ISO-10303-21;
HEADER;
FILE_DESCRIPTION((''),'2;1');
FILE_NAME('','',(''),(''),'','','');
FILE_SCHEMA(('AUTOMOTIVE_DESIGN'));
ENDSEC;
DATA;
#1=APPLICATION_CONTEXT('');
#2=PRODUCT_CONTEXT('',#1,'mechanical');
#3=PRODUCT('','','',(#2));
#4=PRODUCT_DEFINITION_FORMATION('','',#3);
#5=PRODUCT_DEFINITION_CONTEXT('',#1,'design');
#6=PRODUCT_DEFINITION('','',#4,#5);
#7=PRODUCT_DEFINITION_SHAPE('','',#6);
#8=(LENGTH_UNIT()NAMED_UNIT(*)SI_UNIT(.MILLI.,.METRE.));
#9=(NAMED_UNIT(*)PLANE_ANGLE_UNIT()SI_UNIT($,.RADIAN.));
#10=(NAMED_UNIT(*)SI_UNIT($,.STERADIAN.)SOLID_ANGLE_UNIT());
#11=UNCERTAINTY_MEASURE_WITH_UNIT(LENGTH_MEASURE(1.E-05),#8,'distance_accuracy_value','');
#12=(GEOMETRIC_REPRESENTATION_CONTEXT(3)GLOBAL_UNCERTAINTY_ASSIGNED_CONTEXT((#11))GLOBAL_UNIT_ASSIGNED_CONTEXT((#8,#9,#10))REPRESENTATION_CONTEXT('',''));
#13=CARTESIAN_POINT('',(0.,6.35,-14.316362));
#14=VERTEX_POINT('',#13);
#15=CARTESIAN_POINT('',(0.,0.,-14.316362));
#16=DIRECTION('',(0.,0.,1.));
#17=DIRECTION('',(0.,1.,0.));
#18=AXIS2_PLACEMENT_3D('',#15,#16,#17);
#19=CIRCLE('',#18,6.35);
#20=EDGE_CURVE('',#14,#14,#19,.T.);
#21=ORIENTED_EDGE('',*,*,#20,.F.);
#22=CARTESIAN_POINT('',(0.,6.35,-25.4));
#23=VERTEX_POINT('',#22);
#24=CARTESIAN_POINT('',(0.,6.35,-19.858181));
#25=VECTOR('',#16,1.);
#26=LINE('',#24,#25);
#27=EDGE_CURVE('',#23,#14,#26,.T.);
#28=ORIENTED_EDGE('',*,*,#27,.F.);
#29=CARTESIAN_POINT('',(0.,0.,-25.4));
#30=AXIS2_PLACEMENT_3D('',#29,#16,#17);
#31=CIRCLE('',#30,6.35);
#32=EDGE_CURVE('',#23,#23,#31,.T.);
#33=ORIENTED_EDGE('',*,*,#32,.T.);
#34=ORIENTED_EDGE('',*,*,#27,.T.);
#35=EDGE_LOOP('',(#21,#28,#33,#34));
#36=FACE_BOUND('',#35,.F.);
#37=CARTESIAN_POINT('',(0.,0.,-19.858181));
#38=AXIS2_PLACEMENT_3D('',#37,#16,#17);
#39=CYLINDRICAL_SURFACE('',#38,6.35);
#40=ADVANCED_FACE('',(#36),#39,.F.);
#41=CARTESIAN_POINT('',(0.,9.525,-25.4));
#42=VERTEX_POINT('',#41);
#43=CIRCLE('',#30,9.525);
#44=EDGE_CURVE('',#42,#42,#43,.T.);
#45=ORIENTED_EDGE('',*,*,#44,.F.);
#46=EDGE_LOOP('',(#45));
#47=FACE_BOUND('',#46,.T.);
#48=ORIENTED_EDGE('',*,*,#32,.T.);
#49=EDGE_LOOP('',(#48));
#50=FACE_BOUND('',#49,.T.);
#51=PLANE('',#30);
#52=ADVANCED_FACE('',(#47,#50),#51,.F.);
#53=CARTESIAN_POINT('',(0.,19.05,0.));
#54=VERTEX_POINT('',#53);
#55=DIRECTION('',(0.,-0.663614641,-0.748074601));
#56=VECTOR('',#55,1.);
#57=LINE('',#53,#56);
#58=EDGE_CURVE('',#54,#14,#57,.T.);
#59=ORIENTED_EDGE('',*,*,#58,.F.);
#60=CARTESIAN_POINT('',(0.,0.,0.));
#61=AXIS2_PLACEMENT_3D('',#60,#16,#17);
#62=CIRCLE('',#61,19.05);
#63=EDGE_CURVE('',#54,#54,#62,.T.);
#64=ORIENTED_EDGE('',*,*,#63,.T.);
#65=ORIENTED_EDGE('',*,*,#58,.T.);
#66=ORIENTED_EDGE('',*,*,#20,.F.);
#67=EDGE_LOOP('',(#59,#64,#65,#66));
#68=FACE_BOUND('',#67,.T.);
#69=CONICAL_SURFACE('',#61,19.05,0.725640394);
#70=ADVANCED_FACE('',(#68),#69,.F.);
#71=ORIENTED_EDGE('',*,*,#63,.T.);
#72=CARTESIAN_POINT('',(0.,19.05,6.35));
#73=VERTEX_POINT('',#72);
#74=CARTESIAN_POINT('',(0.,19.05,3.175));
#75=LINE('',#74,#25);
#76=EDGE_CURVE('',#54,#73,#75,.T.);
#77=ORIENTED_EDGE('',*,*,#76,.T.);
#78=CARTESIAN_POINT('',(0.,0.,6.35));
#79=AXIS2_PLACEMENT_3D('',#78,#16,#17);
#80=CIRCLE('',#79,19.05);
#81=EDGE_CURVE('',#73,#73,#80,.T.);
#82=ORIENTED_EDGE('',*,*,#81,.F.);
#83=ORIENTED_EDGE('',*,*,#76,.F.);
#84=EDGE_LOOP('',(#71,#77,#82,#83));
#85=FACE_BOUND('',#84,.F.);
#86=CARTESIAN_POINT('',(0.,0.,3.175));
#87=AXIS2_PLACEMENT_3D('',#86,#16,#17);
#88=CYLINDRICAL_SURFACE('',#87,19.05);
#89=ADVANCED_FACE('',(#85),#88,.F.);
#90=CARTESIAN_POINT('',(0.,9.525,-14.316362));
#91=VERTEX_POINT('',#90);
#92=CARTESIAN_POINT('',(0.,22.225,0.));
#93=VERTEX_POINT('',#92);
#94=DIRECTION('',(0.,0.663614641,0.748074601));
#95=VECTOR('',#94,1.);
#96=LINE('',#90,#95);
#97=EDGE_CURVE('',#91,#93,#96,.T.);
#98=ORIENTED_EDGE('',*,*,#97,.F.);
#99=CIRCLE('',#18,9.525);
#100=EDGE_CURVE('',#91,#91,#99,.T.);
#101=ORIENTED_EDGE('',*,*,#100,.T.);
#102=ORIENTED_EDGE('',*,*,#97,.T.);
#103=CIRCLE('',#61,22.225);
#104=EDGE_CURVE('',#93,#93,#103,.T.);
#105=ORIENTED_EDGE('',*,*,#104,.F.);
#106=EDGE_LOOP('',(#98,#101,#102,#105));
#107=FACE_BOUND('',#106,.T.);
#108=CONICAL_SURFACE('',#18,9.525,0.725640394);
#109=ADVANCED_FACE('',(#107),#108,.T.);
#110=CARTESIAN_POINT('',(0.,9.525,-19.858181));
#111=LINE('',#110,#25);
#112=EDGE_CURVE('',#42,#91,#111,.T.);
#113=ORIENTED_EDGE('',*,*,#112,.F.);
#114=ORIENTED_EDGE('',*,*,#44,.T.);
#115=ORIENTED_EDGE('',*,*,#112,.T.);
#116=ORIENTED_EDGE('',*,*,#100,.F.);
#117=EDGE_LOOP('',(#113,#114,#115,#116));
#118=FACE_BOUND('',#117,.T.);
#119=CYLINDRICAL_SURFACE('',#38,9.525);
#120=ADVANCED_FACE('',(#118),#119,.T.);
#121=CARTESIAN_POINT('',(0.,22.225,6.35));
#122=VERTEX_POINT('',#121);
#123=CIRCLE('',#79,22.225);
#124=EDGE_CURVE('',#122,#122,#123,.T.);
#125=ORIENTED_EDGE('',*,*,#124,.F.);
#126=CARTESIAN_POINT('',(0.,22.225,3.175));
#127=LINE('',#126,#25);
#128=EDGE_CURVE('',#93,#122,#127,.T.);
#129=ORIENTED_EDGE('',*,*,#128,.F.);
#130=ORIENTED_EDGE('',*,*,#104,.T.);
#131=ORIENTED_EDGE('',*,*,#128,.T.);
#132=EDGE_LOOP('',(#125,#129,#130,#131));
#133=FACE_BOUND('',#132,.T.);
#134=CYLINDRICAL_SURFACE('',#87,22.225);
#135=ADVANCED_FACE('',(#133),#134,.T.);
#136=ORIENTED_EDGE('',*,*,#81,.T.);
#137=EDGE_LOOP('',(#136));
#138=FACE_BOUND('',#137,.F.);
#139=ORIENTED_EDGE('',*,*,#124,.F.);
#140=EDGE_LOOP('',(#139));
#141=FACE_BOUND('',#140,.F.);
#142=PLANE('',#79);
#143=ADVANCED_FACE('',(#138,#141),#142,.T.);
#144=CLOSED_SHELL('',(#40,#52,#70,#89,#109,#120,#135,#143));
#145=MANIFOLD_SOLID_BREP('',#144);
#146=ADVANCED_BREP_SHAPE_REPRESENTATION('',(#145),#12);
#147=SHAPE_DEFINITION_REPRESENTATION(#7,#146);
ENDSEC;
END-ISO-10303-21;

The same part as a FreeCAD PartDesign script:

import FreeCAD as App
import Part
import Sketcher
from FreeCAD import Vector
Q = App.Units.Quantity


def add_polygon(sketch, points):
    """Adds a closed chain of lines whose ends are joined by coincident constraints."""
    first, n = sketch.GeometryCount, len(points)
    for a, b in zip(points, points[1:] + points[:1]):
        sketch.addGeometry(Part.LineSegment(App.Vector(*a, 0), App.Vector(*b, 0)), False)
    for i in range(n):
        sketch.addConstraint(Sketcher.Constraint("Coincident", first + i, 2, first + (i + 1) % n, 1))

doc = App.newDocument("Part")
body = doc.addObject("PartDesign::Body", "Body")

# Sketch on YZ plane
sketch1 = doc.addObject("Sketcher::SketchObject", "Sketch")
body.addObject(sketch1)
sketch1.AttachmentSupport = (doc.YZ_Plane, [""])
sketch1.MapMode = "FlatFace"
add_polygon(sketch1, [(19.1, 6.3), (19.1, 0), (6.3, -14.3), (6.3, -25.4), (9.5, -25.4), (9.5, -14.3), (22.2, 0), (22.2, 6.3)])  # lines 0-7
sketch1.addConstraint([
    Sketcher.Constraint("Vertical", 0),
    Sketcher.Constraint("Vertical", 2),
    Sketcher.Constraint("Horizontal", 3),
    Sketcher.Constraint("Vertical", 4),
    Sketcher.Constraint("Vertical", 6),
    Sketcher.Constraint("Horizontal", 7),
    Sketcher.Constraint("PointOnObject", 0, 2, -1),
    Sketcher.Constraint("PointOnObject", 5, 2, -1),
    Sketcher.Constraint("Parallel", 1, 5),
    Sketcher.Constraint("Horizontal", 1, 2, 4, 2),
    Sketcher.Constraint("DistanceY", 2, 2, -1, 1, Q("1 in")),
    Sketcher.Constraint("DistanceY", 0, 2, 0, 1, Q("0.25 in")),
    Sketcher.Constraint("DistanceX", 1, 2, 0, 2, Q("0.5 in")),
    Sketcher.Constraint("DistanceX", 3, 1, 3, 2, Q("0.125 in")),
    Sketcher.Constraint("DistanceX", -1, 1, 0, 2, Q("0.75 in")),
    Sketcher.Constraint("DistanceY", 2, 2, 2, 1, Q("11.083638 mm")),
])
revolution = doc.addObject("PartDesign::Revolution", "Revolution")
body.addObject(revolution)
revolution.Profile = sketch1
revolution.ReferenceAxis = (sketch1, ["V_Axis"])
revolution.Angle = 360
body2 = doc.addObject("PartDesign::Body", "Body001")

# Sketch on XY plane
sketch2 = doc.addObject("Sketcher::SketchObject", "Sketch001")
body2.addObject(sketch2)
sketch2.AttachmentSupport = (doc.getObject("XY_Plane001"), [""])
sketch2.MapMode = "FlatFace"
sketch2.addGeometry(Part.Circle(Vector(0, 0, 0), Vector(0, 0, 1), 9), False)
sketch2.addConstraint([
    Sketcher.Constraint("Coincident", 0, 3, -1, 1),
    Sketcher.Constraint("Diameter", 0, Q("18.081804 mm")),
])
pad1 = doc.addObject("PartDesign::Pad", "Pad")
body2.addObject(pad1)
pad1.Profile = sketch2
pad1.Length = Q("0.375 in")

# Sketch on XY plane
sketch3 = doc.addObject("Sketcher::SketchObject", "Sketch002")
body2.addObject(sketch3)
sketch3.AttachmentSupport = (doc.getObject("XY_Plane001"), [""])
sketch3.MapMode = "FlatFace"
sketch3.addGeometry(Part.Circle(Vector(0, 0, 0), Vector(0, 0, 1), 10), False)
sketch3.addConstraint([
    Sketcher.Constraint("Coincident", 0, 3, -1, 1),
    Sketcher.Constraint("Diameter", 0, Q("19.078176 mm")),
])
pad2 = doc.addObject("PartDesign::Pad", "Pad001")
body2.addObject(pad2)
pad2.Profile = sketch3
pad2.Length = Q("1 in")
body2.Visibility = False

doc.recompute()
